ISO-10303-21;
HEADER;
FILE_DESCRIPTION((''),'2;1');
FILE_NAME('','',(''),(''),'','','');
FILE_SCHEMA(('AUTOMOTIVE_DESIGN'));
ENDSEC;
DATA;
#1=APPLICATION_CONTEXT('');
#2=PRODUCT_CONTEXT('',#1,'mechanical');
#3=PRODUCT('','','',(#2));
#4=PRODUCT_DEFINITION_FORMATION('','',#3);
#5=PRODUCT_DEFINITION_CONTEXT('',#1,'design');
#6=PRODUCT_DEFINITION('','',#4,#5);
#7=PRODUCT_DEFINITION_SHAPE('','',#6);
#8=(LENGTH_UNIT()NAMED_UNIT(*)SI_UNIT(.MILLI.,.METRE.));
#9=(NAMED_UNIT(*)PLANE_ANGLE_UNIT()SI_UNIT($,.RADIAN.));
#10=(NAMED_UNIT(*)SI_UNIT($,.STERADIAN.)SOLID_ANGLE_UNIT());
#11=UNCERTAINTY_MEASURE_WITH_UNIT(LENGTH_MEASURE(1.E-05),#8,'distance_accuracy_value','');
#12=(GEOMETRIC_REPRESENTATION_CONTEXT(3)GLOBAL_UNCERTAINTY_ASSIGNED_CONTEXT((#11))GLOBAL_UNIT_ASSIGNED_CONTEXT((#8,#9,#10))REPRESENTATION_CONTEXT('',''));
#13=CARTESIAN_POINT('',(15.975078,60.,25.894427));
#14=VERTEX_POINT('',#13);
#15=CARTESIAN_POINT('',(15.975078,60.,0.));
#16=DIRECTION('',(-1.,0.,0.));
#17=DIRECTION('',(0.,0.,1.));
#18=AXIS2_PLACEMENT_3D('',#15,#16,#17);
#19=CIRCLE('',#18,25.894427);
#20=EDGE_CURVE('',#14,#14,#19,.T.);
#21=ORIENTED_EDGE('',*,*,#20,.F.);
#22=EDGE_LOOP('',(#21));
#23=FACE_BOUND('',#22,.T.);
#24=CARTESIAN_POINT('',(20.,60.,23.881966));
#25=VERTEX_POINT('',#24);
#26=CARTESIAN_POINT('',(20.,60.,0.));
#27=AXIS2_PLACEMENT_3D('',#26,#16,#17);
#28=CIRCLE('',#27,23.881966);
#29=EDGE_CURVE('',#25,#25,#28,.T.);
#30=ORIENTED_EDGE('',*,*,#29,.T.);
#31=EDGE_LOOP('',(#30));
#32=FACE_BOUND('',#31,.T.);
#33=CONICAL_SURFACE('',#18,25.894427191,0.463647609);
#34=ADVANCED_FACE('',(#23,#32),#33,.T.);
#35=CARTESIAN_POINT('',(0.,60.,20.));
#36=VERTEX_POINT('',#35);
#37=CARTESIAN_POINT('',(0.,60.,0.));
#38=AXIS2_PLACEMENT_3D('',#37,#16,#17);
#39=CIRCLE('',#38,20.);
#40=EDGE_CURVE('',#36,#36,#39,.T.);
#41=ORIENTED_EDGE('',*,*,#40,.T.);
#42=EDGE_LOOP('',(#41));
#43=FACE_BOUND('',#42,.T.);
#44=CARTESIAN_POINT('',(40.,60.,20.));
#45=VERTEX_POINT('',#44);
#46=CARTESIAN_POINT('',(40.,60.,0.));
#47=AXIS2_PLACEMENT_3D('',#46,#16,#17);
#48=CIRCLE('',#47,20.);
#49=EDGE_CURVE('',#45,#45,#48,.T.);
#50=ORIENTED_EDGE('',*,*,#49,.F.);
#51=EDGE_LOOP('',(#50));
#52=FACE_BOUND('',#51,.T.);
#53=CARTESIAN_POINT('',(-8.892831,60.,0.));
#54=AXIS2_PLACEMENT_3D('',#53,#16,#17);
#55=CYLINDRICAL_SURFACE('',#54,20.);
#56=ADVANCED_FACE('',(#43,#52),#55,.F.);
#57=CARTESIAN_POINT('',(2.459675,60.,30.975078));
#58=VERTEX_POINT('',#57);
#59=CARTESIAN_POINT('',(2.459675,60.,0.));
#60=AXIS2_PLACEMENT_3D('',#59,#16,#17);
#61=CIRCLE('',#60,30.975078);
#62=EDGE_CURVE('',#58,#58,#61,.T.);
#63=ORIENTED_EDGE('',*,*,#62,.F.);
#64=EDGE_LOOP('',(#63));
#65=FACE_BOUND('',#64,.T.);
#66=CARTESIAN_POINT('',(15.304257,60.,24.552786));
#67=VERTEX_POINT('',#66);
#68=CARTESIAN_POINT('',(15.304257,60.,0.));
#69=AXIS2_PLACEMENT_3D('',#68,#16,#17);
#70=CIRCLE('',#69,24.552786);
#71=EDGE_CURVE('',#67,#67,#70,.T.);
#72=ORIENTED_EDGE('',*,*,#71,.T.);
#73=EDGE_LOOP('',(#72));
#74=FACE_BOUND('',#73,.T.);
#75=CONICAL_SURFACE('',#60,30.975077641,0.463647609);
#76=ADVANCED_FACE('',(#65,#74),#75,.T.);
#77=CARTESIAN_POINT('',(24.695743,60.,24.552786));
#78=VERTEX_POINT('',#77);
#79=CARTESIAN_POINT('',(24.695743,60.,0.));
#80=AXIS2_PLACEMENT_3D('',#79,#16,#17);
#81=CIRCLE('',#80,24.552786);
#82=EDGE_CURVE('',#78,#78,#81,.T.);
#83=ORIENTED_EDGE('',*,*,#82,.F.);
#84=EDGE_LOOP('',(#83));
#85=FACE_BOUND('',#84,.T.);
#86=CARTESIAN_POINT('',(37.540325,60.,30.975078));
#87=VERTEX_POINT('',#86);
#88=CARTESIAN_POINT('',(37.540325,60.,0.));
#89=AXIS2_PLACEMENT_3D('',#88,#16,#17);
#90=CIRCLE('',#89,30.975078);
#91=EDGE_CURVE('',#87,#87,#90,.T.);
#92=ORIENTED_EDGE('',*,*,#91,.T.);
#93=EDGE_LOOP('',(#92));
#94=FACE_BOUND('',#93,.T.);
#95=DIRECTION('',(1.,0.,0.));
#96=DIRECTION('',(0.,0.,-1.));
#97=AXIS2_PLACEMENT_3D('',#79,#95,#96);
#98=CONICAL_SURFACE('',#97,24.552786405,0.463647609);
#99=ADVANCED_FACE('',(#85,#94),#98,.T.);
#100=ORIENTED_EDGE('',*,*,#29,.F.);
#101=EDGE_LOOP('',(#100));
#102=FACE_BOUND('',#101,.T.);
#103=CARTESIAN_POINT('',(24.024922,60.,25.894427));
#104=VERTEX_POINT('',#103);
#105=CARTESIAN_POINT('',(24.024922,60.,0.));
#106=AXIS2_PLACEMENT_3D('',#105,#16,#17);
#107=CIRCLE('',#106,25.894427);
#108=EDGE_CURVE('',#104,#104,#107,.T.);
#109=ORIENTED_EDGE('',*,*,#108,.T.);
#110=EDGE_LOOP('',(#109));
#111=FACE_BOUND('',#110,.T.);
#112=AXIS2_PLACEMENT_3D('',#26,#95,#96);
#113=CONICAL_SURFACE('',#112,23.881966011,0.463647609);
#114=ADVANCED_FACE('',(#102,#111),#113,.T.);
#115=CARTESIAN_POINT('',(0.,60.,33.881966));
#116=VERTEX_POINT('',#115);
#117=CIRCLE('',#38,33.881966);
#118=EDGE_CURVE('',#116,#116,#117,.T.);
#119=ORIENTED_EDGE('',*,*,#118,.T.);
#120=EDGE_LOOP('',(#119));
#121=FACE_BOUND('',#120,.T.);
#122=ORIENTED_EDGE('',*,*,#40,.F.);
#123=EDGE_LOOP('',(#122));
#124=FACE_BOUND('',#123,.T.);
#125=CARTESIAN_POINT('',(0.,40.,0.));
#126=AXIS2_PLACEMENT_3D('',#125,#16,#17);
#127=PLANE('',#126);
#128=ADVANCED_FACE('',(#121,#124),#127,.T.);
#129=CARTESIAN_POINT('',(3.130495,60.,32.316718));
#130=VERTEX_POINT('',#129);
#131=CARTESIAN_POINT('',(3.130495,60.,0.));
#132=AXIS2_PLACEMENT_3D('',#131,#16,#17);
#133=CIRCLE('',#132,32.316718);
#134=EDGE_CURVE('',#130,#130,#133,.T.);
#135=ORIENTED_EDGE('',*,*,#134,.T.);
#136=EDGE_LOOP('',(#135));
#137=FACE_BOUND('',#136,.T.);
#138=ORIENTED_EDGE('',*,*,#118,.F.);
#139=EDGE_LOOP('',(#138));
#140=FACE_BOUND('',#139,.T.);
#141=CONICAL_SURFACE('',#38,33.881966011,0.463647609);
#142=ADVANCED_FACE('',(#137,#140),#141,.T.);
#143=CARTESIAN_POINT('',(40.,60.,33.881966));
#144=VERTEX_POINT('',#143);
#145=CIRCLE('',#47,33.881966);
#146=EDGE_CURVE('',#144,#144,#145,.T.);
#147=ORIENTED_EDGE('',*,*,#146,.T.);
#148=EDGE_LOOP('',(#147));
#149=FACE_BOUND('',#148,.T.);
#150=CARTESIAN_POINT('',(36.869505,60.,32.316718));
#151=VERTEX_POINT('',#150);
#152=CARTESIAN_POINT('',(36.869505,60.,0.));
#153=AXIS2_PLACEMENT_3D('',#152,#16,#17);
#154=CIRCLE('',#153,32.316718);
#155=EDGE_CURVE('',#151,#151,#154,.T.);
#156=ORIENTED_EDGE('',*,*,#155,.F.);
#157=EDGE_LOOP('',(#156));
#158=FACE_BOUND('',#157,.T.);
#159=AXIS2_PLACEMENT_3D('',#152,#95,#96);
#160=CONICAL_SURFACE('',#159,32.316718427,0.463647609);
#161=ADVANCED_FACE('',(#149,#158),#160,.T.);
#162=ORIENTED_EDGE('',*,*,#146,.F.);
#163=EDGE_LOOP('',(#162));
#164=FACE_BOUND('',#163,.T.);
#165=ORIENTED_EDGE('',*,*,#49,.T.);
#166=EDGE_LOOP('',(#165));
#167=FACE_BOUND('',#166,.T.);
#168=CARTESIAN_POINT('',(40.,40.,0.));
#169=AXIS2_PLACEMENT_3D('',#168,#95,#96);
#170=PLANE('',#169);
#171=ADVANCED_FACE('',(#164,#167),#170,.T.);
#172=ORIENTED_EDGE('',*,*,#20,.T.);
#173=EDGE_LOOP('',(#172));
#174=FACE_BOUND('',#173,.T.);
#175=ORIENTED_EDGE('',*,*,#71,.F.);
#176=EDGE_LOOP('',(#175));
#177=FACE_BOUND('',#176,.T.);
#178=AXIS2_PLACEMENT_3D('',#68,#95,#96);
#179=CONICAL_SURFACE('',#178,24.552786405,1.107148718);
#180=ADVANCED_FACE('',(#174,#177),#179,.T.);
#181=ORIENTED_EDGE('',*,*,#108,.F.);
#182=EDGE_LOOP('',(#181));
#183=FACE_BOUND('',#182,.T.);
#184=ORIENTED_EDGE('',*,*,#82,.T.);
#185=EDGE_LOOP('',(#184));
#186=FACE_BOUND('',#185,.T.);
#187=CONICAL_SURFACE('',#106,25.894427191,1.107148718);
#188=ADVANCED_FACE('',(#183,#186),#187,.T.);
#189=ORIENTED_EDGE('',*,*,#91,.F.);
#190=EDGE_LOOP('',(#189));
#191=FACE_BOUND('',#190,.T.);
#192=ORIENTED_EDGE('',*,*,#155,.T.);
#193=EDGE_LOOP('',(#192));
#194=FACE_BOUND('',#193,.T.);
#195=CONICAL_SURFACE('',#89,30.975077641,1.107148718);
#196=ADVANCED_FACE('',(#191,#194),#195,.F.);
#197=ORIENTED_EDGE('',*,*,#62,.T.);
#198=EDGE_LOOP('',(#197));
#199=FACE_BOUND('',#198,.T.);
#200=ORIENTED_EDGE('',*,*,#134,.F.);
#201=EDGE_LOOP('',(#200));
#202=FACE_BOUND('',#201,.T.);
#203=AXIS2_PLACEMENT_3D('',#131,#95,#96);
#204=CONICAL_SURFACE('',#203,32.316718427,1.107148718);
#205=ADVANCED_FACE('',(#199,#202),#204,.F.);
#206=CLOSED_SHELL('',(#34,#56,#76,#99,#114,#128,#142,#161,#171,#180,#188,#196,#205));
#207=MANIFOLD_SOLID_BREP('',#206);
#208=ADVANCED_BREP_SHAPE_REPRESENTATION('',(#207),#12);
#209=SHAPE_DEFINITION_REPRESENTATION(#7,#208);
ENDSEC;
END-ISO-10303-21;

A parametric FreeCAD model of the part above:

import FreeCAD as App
import Part
import Sketcher
Q = App.Units.Quantity

doc = App.newDocument("Part")
body = doc.addObject("PartDesign::Body", "Body")

# Sketch on XY plane
sketch1 = doc.addObject("Sketcher::SketchObject", "Sketch")
body.addObject(sketch1)
sketch1.AttachmentSupport = (doc.XY_Plane, [""])
sketch1.MapMode = "FlatFace"
sketch1.addGeometry([
    Part.LineSegment(App.Vector(0, 40, 0), App.Vector(0, 26.1, 0)),  # 0
    Part.LineSegment(App.Vector(0, 26.1, 0), App.Vector(3.1, 27.7, 0)),  # 1
    Part.LineSegment(App.Vector(3.1, 27.7, 0), App.Vector(2.5, 29, 0)),  # 2
    Part.LineSegment(App.Vector(2.5, 29, 0), App.Vector(15.3, 35.4, 0)),  # 3
    Part.LineSegment(App.Vector(15.3, 35.4, 0), App.Vector(16, 34.1, 0)),  # 4
    Part.LineSegment(App.Vector(16, 34.1, 0), App.Vector(20, 36.1, 0)),  # 5
    Part.LineSegment(App.Vector(20, 36.1, 0), App.Vector(24, 34.1, 0)),  # 6
    Part.LineSegment(App.Vector(24, 34.1, 0), App.Vector(24.7, 35.4, 0)),  # 7
    Part.LineSegment(App.Vector(24.7, 35.4, 0), App.Vector(37.5, 29, 0)),  # 8
    Part.LineSegment(App.Vector(37.5, 29, 0), App.Vector(36.9, 27.7, 0)),  # 9
    Part.LineSegment(App.Vector(36.9, 27.7, 0), App.Vector(40, 26.1, 0)),  # 10
    Part.LineSegment(App.Vector(40, 26.1, 0), App.Vector(40, 40, 0)),  # 11
    Part.LineSegment(App.Vector(40, 40, 0), App.Vector(0, 40, 0)),  # 12
], False)
sketch1.addGeometry(Part.LineSegment(App.Vector(0, 60, 0), App.Vector(40, 60, 0)), True)  # axis
sketch1.addConstraint([
    Sketcher.Constraint("Coincident", 0, 2, 1, 1),
    Sketcher.Constraint("Coincident", 1, 2, 2, 1),
    Sketcher.Constraint("Coincident", 2, 2, 3, 1),
    Sketcher.Constraint("Coincident", 3, 2, 4, 1),
    Sketcher.Constraint("Coincident", 4, 2, 5, 1),
    Sketcher.Constraint("Coincident", 5, 2, 6, 1),
    Sketcher.Constraint("Coincident", 6, 2, 7, 1),
    Sketcher.Constraint("Coincident", 7, 2, 8, 1),
    Sketcher.Constraint("Coincident", 8, 2, 9, 1),
    Sketcher.Constraint("Coincident", 9, 2, 10, 1),
    Sketcher.Constraint("Coincident", 10, 2, 11, 1),
    Sketcher.Constraint("Coincident", 11, 2, 12, 1),
    Sketcher.Constraint("Coincident", 12, 2, 0, 1),
    Sketcher.Constraint("Vertical", 0),
    Sketcher.Constraint("Vertical", 11),
    Sketcher.Constraint("Horizontal", 12),
    Sketcher.Constraint("Horizontal", 13),
    Sketcher.Constraint("PointOnObject", 0, 2, -2),
    Sketcher.Constraint("PointOnObject", 13, 1, -2),
    Sketcher.Constraint("Perpendicular", 1, 2),
    Sketcher.Constraint("Perpendicular", 2, 3),
    Sketcher.Constraint("Perpendicular", 3, 4),
    Sketcher.Constraint("Perpendicular", 4, 5),
    Sketcher.Constraint("Perpendicular", 6, 7),
    Sketcher.Constraint("Perpendicular", 7, 8),
    Sketcher.Constraint("Perpendicular", 8, 9),
    Sketcher.Constraint("Perpendicular", 9, 10),
    Sketcher.Constraint("Horizontal", 4, 2, 6, 2),
    Sketcher.Constraint("Horizontal", 3, 2, 7, 2),
    Sketcher.Constraint("Horizontal", 2, 2, 8, 2),
    Sketcher.Constraint("Horizontal", 1, 2, 9, 2),
    Sketcher.Constraint("Horizontal", 0, 2, 10, 2),
    Sketcher.Constraint("Vertical", 11, 2, 13, 2),
    Sketcher.Constraint("Equal", 2, 4),
    Sketcher.Constraint("Equal", 5, 6),
    Sketcher.Constraint("DistanceX", 12, 2, 12, 1, Q("40 mm")),
    Sketcher.Constraint("DistanceY", -1, 1, 11, 2, Q("40 mm")),
    Sketcher.Constraint("DistanceY", -1, 1, 13, 1, Q("60 mm")),
    Sketcher.Constraint("DistanceY", 0, 2, 5, 2, Q("10 mm")),
    Sketcher.Constraint("Distance", 1, Q("3.5 mm")),
    Sketcher.Constraint("Distance", 2, Q("1.5 mm")),
    Sketcher.Constraint("Distance", 5, Q("4.5 mm")),
    Sketcher.Constraint("DistanceY", 0, 2, 0, 1, Q("13.881966 mm")),
])
revolution = doc.addObject("PartDesign::Revolution", "Revolution")
body.addObject(revolution)
revolution.Profile = sketch1
revolution.ReferenceAxis = (sketch1, ["Axis0"])
revolution.Angle = 360

doc.recompute()
